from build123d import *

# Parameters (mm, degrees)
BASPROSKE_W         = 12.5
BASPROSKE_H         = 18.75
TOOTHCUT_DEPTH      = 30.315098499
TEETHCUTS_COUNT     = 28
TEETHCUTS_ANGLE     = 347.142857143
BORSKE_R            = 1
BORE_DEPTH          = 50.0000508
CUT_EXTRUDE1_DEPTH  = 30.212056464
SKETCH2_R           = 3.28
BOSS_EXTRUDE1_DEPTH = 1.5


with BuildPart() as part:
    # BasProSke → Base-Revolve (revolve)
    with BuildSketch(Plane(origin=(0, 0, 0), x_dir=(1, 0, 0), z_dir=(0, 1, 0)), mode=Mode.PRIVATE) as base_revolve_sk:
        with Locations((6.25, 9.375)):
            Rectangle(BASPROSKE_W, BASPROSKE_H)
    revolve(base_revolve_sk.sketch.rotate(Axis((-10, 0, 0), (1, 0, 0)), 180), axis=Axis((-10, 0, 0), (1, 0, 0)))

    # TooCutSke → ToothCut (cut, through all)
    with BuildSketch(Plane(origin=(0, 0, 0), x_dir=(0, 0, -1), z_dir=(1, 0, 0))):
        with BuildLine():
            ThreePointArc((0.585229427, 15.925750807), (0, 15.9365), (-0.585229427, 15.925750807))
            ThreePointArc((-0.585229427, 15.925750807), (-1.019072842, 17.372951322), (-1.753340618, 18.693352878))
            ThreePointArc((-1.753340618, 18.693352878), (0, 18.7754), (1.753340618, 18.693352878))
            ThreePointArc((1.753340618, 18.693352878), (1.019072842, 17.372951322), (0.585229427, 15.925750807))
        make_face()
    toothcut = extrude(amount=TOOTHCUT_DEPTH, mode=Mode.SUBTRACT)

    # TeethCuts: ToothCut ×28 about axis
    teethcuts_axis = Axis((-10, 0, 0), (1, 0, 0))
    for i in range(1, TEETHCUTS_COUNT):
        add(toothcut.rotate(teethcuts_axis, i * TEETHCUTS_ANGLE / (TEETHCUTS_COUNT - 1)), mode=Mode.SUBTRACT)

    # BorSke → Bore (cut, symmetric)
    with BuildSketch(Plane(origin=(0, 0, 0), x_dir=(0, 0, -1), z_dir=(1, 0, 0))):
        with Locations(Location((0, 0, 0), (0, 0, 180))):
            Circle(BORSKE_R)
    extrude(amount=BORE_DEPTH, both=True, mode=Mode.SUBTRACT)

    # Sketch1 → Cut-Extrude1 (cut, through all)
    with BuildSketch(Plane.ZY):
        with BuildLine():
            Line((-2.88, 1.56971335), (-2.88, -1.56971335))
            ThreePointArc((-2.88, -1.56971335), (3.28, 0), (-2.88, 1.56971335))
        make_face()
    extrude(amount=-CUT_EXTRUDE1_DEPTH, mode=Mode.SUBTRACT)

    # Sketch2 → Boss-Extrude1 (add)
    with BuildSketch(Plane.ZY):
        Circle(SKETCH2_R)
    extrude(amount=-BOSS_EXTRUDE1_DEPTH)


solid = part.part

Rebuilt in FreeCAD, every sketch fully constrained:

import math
import FreeCAD as App
import Part
import Sketcher
from FreeCAD import Vector
Q = App.Units.Quantity

doc = App.newDocument("Part")
body = doc.addObject("PartDesign::Body", "Body")

# Sketch on XZ plane
sketch1 = body.newObject("Sketcher::SketchObject", "Sketch")
sketch1.AttachmentSupport = (doc.getObject("XZ_Plane"), [""])
sketch1.MapMode = "FlatFace"
sketch1.addGeometry(Part.LineSegment(Vector(0, -19, 0), Vector(0, 0, 0)), False)
sketch1.addGeometry(Part.LineSegment(Vector(0, 0, 0), Vector(12, 0, 0)), False)
sketch1.addGeometry(Part.LineSegment(Vector(12, 0, 0), Vector(12, -19, 0)), False)
sketch1.addGeometry(Part.LineSegment(Vector(12, -19, 0), Vector(0, -19, 0)), False)
sketch1.addConstraint(Sketcher.Constraint("Coincident", 0, 2, 1, 1))
sketch1.addConstraint(Sketcher.Constraint("Coincident", 1, 2, 2, 1))
sketch1.addConstraint(Sketcher.Constraint("Coincident", 2, 2, 3, 1))
sketch1.addConstraint(Sketcher.Constraint("Coincident", 3, 2, 0, 1))
sketch1.addConstraint(Sketcher.Constraint("Vertical", 0))
sketch1.addConstraint(Sketcher.Constraint("Horizontal", 1))
sketch1.addConstraint(Sketcher.Constraint("Vertical", 2))
sketch1.addConstraint(Sketcher.Constraint("Horizontal", 3))
sketch1.addConstraint(Sketcher.Constraint("Coincident", 0, 2, -1, 1))
sketch1.addConstraint(Sketcher.Constraint("DistanceX", 1, 1, 1, 2, Q("12.5 mm")))
sketch1.addConstraint(Sketcher.Constraint("DistanceY", 0, 1, 0, 2, Q("18.75 mm")))
revolution = body.newObject("PartDesign::Revolution", "Revolution")
revolution.Profile = sketch1
revolution.ReferenceAxis = (sketch1, ["H_Axis"])
revolution.Angle = 360

# Sketch on YZ plane
sketch2 = body.newObject("Sketcher::SketchObject", "Sketch001")
sketch2.AttachmentSupport = (doc.getObject("YZ_Plane"), [""])
sketch2.MapMode = "FlatFace"
sketch2.addGeometry(Part.ArcOfCircle(Part.Circle(Vector(0, 0, 0), Vector(0, 0, 1), 15.9), math.radians(-2.1), math.radians(2.1)), False)
sketch2.addGeometry(Part.ArcOfCircle(Part.Circle(Vector(14.7, -7.5, 0), Vector(0, 0, 1), 7), math.radians(55), math.radians(80)), False)
sketch2.addGeometry(Part.ArcOfCircle(Part.Circle(Vector(0, 0, 0), Vector(0, 0, 1), 18.8), math.radians(-5.36), math.radians(5.36)), False)
sketch2.addGeometry(Part.ArcOfCircle(Part.Circle(Vector(14.7, 7.5, 0), Vector(0, 0, 1), 7), math.radians(-80), math.radians(-55)), False)
sketch2.addConstraint(Sketcher.Constraint("Coincident", 0, 1, 1, 2))
sketch2.addConstraint(Sketcher.Constraint("Coincident", 1, 1, 2, 1))
sketch2.addConstraint(Sketcher.Constraint("Coincident", 2, 2, 3, 2))
sketch2.addConstraint(Sketcher.Constraint("Coincident", 3, 1, 0, 2))
sketch2.addConstraint(Sketcher.Constraint("Coincident", 0, 3, -1, 1))
sketch2.addConstraint(Sketcher.Constraint("Coincident", 2, 3, -1, 1))
sketch2.addConstraint(Sketcher.Constraint("Equal", 1, 3))
sketch2.addConstraint(Sketcher.Constraint("Symmetric", 1, 3, 3, 3, -1))
sketch2.addConstraint(Sketcher.Constraint("Radius", 1, Q("7 mm")))
sketch2.addConstraint(Sketcher.Constraint("Radius", 0, Q("15.9365 mm")))
sketch2.addConstraint(Sketcher.Constraint("Radius", 2, Q("18.7754 mm")))
sketch2.addConstraint(Sketcher.Constraint("DistanceX", -1, 1, 1, 3, Q("14.651001 mm")))
sketch2.addConstraint(Sketcher.Constraint("DistanceY", 1, 3, -1, 1, Q("7.46818 mm")))
pocket1 = body.newObject("PartDesign::Pocket", "Pocket")
pocket1.Profile = sketch2
pocket1.Type = "ThroughAll"
pocket1.Reversed = True
doc.recompute()

polarpattern = body.newObject("PartDesign::PolarPattern", "PolarPattern")
polarpattern.Originals = [pocket1]
polarpattern.Axis = (doc.getObject("X_Axis"), [""])
polarpattern.Angle = 360
polarpattern.Occurrences = 28
body.Tip = polarpattern

# Sketch on YZ plane
sketch3 = body.newObject("Sketcher::SketchObject", "Sketch002")
sketch3.AttachmentSupport = (doc.getObject("YZ_Plane"), [""])
sketch3.MapMode = "FlatFace"
sketch3.addGeometry(Part.Circle(Vector(0, 0, 0), Vector(0, 0, 1), 1), False)
sketch3.addConstraint(Sketcher.Constraint("Coincident", 0, 3, -1, 1))
sketch3.addConstraint(Sketcher.Constraint("Diameter", 0, Q("2 mm")))
pocket2 = body.newObject("PartDesign::Pocket", "Pocket001")
pocket2.Profile = sketch3
pocket2.Length = 100.000102
pocket2.Midplane = True

# Sketch on YZ plane
sketch4 = body.newObject("Sketcher::SketchObject", "Sketch003")
sketch4.AttachmentSupport = (doc.getObject("YZ_Plane"), [""])
sketch4.MapMode = "FlatFace"
sketch4.addGeometry(Part.LineSegment(Vector(1.6, -2.9, 0), Vector(-1.6, -2.9, 0)), False)
sketch4.addGeometry(Part.ArcOfCircle(Part.Circle(Vector(0, 0, 0), Vector(0, 0, 1), 3.3), math.radians(-61), math.radians(241)), False)
sketch4.addConstraint(Sketcher.Constraint("Coincident", 0, 1, 1, 1))
sketch4.addConstraint(Sketcher.Constraint("Coincident", 1, 2, 0, 2))
sketch4.addConstraint(Sketcher.Constraint("Horizontal", 0))
sketch4.addConstraint(Sketcher.Constraint("Coincident", 1, 3, -1, 1))
sketch4.addConstraint(Sketcher.Constraint("Radius", 1, Q("3.28 mm")))
sketch4.addConstraint(Sketcher.Constraint("DistanceY", 0, 1, -1, 1, Q("2.88 mm")))
pocket3 = body.newObject("PartDesign::Pocket", "Pocket002")
pocket3.Profile = sketch4
pocket3.Type = "ThroughAll"
pocket3.Reversed = True

# Sketch on YZ plane
sketch5 = body.newObject("Sketcher::SketchObject", "Sketch004")
sketch5.AttachmentSupport = (doc.getObject("YZ_Plane"), [""])
sketch5.MapMode = "FlatFace"
sketch5.addGeometry(Part.Circle(Vector(0, 0, 0), Vector(0, 0, 1), 3.3), False)
sketch5.addConstraint(Sketcher.Constraint("Coincident", 0, 3, -1, 1))
sketch5.addConstraint(Sketcher.Constraint("Diameter", 0, Q("6.56 mm")))
pad1 = body.newObject("PartDesign::Pad", "Pad")
pad1.Profile = sketch5
pad1.Length = 1.5

doc.recompute()
